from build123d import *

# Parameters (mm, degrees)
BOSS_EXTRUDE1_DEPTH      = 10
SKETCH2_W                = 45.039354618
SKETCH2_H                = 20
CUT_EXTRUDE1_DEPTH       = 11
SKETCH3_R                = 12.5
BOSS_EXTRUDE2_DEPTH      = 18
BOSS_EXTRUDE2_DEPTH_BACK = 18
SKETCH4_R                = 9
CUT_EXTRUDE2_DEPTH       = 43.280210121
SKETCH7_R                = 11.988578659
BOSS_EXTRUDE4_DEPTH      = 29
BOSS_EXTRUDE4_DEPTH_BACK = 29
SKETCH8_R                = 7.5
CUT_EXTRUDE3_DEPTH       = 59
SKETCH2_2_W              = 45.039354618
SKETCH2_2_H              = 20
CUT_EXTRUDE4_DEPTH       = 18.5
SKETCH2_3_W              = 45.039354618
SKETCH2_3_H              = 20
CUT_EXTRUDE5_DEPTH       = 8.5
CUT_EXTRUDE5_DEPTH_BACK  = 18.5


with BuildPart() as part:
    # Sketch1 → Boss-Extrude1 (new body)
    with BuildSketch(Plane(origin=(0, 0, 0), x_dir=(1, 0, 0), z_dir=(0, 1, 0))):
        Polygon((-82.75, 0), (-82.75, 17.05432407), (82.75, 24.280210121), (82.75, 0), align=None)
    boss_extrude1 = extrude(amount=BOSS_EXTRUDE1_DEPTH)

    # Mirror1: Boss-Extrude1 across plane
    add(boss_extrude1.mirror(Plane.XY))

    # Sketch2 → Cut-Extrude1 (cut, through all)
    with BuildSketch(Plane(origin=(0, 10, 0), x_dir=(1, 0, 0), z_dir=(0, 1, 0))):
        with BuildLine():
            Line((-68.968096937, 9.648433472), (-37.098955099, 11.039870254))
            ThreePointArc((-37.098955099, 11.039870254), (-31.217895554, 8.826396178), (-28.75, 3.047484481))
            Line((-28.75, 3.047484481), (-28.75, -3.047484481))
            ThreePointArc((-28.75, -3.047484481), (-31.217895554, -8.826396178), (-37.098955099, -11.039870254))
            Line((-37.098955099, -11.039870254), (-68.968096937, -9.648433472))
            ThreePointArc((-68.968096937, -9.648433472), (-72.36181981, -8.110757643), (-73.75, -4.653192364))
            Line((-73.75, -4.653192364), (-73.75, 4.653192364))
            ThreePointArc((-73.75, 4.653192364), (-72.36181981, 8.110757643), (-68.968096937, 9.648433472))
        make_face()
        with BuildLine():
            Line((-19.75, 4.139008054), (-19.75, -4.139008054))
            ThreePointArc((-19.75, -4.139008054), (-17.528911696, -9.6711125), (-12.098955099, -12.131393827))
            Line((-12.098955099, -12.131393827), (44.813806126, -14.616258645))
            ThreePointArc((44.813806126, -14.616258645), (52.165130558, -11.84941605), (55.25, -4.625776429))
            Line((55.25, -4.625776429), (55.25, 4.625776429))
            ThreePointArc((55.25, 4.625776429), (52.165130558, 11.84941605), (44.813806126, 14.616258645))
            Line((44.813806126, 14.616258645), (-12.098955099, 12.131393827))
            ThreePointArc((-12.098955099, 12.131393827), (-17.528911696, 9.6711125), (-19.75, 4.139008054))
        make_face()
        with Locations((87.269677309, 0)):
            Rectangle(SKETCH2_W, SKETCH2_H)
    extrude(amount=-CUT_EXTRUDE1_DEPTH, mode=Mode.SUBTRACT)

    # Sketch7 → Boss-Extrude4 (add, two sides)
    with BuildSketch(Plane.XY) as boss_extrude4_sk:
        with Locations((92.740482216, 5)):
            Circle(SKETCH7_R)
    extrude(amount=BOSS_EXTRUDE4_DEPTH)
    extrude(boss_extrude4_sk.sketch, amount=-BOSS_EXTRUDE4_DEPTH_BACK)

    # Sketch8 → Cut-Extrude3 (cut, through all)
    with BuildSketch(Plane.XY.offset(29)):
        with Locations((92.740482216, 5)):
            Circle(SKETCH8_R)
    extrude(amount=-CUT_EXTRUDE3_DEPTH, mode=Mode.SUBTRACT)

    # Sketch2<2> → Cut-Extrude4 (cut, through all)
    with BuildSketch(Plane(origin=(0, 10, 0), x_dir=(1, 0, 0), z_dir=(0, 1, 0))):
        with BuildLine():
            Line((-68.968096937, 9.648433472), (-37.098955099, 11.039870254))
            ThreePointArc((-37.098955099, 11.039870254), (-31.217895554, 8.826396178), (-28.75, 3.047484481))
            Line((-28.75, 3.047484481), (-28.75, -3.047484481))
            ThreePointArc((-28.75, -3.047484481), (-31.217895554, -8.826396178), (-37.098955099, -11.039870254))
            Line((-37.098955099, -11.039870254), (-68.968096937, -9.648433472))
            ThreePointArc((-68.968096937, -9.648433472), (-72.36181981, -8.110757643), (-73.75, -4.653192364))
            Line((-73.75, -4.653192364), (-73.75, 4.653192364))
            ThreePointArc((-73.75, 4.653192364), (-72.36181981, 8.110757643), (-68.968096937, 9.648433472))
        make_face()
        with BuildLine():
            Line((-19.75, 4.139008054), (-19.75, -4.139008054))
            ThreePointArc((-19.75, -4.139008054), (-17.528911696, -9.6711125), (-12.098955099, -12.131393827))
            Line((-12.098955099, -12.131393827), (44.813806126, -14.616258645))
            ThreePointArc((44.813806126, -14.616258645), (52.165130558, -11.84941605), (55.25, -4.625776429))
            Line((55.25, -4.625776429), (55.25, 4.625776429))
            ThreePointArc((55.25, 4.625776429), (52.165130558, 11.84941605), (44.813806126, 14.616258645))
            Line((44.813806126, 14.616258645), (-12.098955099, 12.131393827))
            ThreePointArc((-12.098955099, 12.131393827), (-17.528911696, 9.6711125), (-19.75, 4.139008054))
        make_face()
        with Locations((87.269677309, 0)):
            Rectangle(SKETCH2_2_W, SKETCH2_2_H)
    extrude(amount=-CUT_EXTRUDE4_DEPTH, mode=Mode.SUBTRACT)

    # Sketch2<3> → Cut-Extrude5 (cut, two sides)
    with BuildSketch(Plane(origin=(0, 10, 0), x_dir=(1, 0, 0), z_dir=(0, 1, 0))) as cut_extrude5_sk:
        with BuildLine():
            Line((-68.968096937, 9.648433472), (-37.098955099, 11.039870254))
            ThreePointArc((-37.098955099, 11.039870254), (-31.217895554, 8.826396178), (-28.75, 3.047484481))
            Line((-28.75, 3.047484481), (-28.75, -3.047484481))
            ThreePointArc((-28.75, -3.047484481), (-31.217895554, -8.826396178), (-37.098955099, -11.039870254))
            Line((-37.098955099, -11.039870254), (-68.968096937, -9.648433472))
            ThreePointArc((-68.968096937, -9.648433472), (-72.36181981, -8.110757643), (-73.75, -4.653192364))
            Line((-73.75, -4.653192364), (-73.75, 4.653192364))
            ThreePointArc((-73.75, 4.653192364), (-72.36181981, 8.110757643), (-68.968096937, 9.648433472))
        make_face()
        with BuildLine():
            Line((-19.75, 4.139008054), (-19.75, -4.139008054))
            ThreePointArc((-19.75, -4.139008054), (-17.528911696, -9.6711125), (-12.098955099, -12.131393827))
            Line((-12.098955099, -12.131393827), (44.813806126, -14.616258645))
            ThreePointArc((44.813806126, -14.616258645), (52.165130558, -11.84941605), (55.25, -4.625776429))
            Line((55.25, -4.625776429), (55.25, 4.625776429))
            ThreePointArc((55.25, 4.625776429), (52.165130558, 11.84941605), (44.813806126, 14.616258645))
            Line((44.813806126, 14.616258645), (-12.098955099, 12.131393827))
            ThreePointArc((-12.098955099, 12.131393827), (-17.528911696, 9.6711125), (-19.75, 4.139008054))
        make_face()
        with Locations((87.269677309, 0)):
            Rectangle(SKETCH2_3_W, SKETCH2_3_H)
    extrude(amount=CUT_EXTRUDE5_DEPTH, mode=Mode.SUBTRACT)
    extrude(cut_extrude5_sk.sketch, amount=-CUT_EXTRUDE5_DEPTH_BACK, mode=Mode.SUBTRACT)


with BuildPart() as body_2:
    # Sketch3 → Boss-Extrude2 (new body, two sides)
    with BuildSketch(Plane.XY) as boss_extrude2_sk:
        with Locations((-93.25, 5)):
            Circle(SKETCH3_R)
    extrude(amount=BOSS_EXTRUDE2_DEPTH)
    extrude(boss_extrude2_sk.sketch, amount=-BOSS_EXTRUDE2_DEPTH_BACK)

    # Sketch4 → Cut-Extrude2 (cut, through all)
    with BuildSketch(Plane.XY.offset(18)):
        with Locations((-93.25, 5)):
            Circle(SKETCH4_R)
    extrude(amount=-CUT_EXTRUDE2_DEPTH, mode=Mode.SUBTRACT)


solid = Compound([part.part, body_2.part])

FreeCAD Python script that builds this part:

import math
import FreeCAD as App
import Part
import Sketcher

V = App.Vector
Q = App.Units.Quantity

doc = App.newDocument("Part")
body = doc.addObject("PartDesign::Body", "Body")

sketch1 = body.newObject("Sketcher::SketchObject", "Sketch")
sketch1.AttachmentSupport = (doc.getObject("XZ_Plane"), [""])
sketch1.MapMode = "FlatFace"
sketch1.addGeometry([
    Part.LineSegment(V(-83, -17, 0), V(-83, 0, 0)),
    Part.LineSegment(V(-83, 0, 0), V(83, 0, 0)),
    Part.LineSegment(V(83, 0, 0), V(83, -24, 0)),
    Part.LineSegment(V(83, -24, 0), V(-83, -17, 0)),
], False)
sketch1.addConstraint([
    Sketcher.Constraint("Coincident", 0, 2, 1, 1),
    Sketcher.Constraint("Coincident", 1, 2, 2, 1),
    Sketcher.Constraint("Coincident", 2, 2, 3, 1),
    Sketcher.Constraint("Coincident", 3, 2, 0, 1),
    Sketcher.Constraint("Vertical", 0),
    Sketcher.Constraint("Horizontal", 1),
    Sketcher.Constraint("Vertical", 2),
    Sketcher.Constraint("Symmetric", 0, 2, 1, 2, -1, 1),
    Sketcher.Constraint("DistanceX", 1, 1, 1, 2, Q("165.5 mm")),
    Sketcher.Constraint("Angle", 3, Q("177.5 deg")),
    Sketcher.Constraint("DistanceY", 2, 2, 2, 1, Q("24.28021 mm")),
])
pad1 = body.newObject("PartDesign::Pad", "Pad")
pad1.Profile = sketch1
pad1.Length = 10
pad1.Reversed = True
doc.recompute()

mirrored = body.newObject("PartDesign::Mirrored", "Mirrored")
mirrored.Originals = [pad1]
mirrored.MirrorPlane = (doc.getObject("XY_Plane"), [""])
body.Tip = mirrored

sketch2 = body.newObject("Sketcher::SketchObject", "Sketch001")
sketch2.AttachmentSupport = (doc.getObject("XZ_Plane"), [""])
sketch2.MapMode = "FlatFace"
sketch2.AttachmentOffset = App.Placement(V(0, 0, -10), App.Rotation())
sketch2.addGeometry([
    Part.LineSegment(V(-37, -11, 0), V(-69, -10, 0)),
    Part.ArcOfCircle(Part.Circle(V(-69, -5, 0), V(0, 0, 1), 5), math.radians(180), math.radians(267)),
    Part.LineSegment(V(-74, -5, 0), V(-74, 5, 0)),
    Part.ArcOfCircle(Part.Circle(V(-69, 5, 0), V(0, 0, 1), 5), math.radians(93), math.radians(180)),
    Part.LineSegment(V(-69, 10, 0), V(-37, 11, 0)),
    Part.ArcOfCircle(Part.Circle(V(-37, 3, 0), V(0, 0, 1), 8), math.radians(0), math.radians(93)),
    Part.LineSegment(V(-29, 3, 0), V(-29, -3, 0)),
    Part.ArcOfCircle(Part.Circle(V(-37, -3, 0), V(0, 0, 1), 8), math.radians(-93), math.radians(0)),
    Part.LineSegment(V(-20, -4, 0), V(-20, 4, 0)),
    Part.ArcOfCircle(Part.Circle(V(-12, 4, 0), V(0, 0, 1), 8), math.radians(93), math.radians(180)),
    Part.LineSegment(V(-12, 12, 0), V(45, 15, 0)),
    Part.ArcOfCircle(Part.Circle(V(45, 5, 0), V(0, 0, 1), 10), math.radians(0), math.radians(93)),
    Part.LineSegment(V(55, 5, 0), V(55, -5, 0)),
    Part.ArcOfCircle(Part.Circle(V(45, -5, 0), V(0, 0, 1), 10), math.radians(-93), math.radians(0)),
    Part.LineSegment(V(45, -15, 0), V(-12, -12, 0)),
    Part.ArcOfCircle(Part.Circle(V(-12, -4, 0), V(0, 0, 1), 8), math.radians(-180), math.radians(-93)),
    Part.LineSegment(V(65, -10, 0), V(65, 10, 0)),
    Part.LineSegment(V(65, 10, 0), V(110, 10, 0)),
    Part.LineSegment(V(110, 10, 0), V(110, -10, 0)),
    Part.LineSegment(V(110, -10, 0), V(65, -10, 0)),
], False)
sketch2.addConstraint([
    Sketcher.Constraint("Tangent", 0, 2, 1, 2),
    Sketcher.Constraint("Tangent", 1, 1, 2, 1),
    Sketcher.Constraint("Tangent", 2, 2, 3, 2),
    Sketcher.Constraint("Tangent", 3, 1, 4, 1),
    Sketcher.Constraint("Tangent", 4, 2, 5, 2),
    Sketcher.Constraint("Tangent", 5, 1, 6, 1),
    Sketcher.Constraint("Tangent", 6, 2, 7, 2),
    Sketcher.Constraint("Tangent", 7, 1, 0, 1),
    Sketcher.Constraint("Tangent", 8, 2, 9, 2),
    Sketcher.Constraint("Tangent", 9, 1, 10, 1),
    Sketcher.Constraint("Tangent", 10, 2, 11, 2),
    Sketcher.Constraint("Tangent", 11, 1, 12, 1),
    Sketcher.Constraint("Tangent", 12, 2, 13, 2),
    Sketcher.Constraint("Tangent", 13, 1, 14, 1),
    Sketcher.Constraint("Tangent", 14, 2, 15, 2),
    Sketcher.Constraint("Tangent", 15, 1, 8, 1),
    Sketcher.Constraint("Coincident", 16, 2, 17, 1),
    Sketcher.Constraint("Coincident", 17, 2, 18, 1),
    Sketcher.Constraint("Coincident", 18, 2, 19, 1),
    Sketcher.Constraint("Coincident", 19, 2, 16, 1),
    Sketcher.Constraint("Vertical", 2),
    Sketcher.Constraint("Vertical", 6),
    Sketcher.Constraint("Vertical", 8),
    Sketcher.Constraint("Vertical", 12),
    Sketcher.Constraint("Vertical", 16),
    Sketcher.Constraint("Horizontal", 17),
    Sketcher.Constraint("Vertical", 18),
    Sketcher.Constraint("Horizontal", 19),
    Sketcher.Constraint("Equal", 1, 3),
    Sketcher.Constraint("Equal", 5, 7),
    Sketcher.Constraint("Equal", 7, 9),
    Sketcher.Constraint("Equal", 11, 13),
    Sketcher.Constraint("Equal", 9, 15),
    Sketcher.Constraint("Symmetric", 0, 2, 3, 1, -1),
    Sketcher.Constraint("Symmetric", 10, 2, 13, 1, -1),
    Sketcher.Constraint("Parallel", 4, 10),
    Sketcher.Constraint("Radius", 1, Q("5 mm")),
    Sketcher.Constraint("Radius", 5, Q("8 mm")),
    Sketcher.Constraint("Radius", 11, Q("10 mm")),
    Sketcher.Constraint("DistanceY", 16, 1, 16, 2, Q("20 mm")),
    Sketcher.Constraint("DistanceY", -1, 1, 16, 2, Q("10 mm")),
    Sketcher.Constraint("Angle", 0, Q("177.5 deg")),
    Sketcher.Constraint("DistanceX", 3, 3, 5, 3, Q("32 mm")),
    Sketcher.Constraint("DistanceX", 5, 3, 9, 3, Q("25 mm")),
    Sketcher.Constraint("DistanceX", 9, 3, 11, 3, Q("57 mm")),
    Sketcher.Constraint("DistanceX", 11, 1, 16, 2, Q("9.5 mm")),
    Sketcher.Constraint("DistanceX", 1, 3, -1, 1, Q("68.75 mm")),
    Sketcher.Constraint("DistanceY", 6, 2, 6, 1, Q("6.094969 mm")),
    Sketcher.Constraint("DistanceY", 1, 3, 9, 3, Q("8.7922 mm")),
    Sketcher.Constraint("DistanceX", 17, 1, 17, 2, Q("45.039355 mm")),
])
pocket1 = body.newObject("PartDesign::Pocket", "Pocket")
pocket1.Profile = sketch2
pocket1.Type = "ThroughAll"
pocket1.Reversed = True

sketch3 = body.newObject("Sketcher::SketchObject", "Sketch002")
sketch3.AttachmentSupport = (doc.getObject("XY_Plane"), [""])
sketch3.MapMode = "FlatFace"
sketch3.addGeometry(Part.Circle(V(93, 5, 0), V(0, 0, 1), 12), False)
sketch3.addConstraint([
    Sketcher.Constraint("DistanceY", -1, 1, 0, 3, Q("5 mm")),
    Sketcher.Constraint("Diameter", 0, Q("23.977157 mm")),
    Sketcher.Constraint("DistanceX", -1, 1, 0, 3, Q("92.740482 mm")),
])
pad2 = body.newObject("PartDesign::Pad", "Pad001")
pad2.Profile = sketch3
pad2.Type = "TwoLengths"
pad2.Length = 29
pad2.Length2 = 29

sketch4 = body.newObject("Sketcher::SketchObject", "Sketch003")
sketch4.AttachmentSupport = (doc.getObject("XY_Plane"), [""])
sketch4.MapMode = "FlatFace"
sketch4.AttachmentOffset = App.Placement(V(0, 0, 29), App.Rotation())
sketch4.addGeometry(Part.Circle(V(93, 5, 0), V(0, 0, 1), 8), False)
sketch4.addConstraint([
    Sketcher.Constraint("Diameter", 0, Q("15 mm")),
    Sketcher.Constraint("DistanceY", -1, 1, 0, 3, Q("5 mm")),
    Sketcher.Constraint("DistanceX", -1, 1, 0, 3, Q("92.740482 mm")),
])
pocket2 = body.newObject("PartDesign::Pocket", "Pocket001")
pocket2.Profile = sketch4
pocket2.Type = "ThroughAll"

sketch5 = body.newObject("Sketcher::SketchObject", "Sketch004")
sketch5.AttachmentSupport = (doc.getObject("XZ_Plane"), [""])
sketch5.MapMode = "FlatFace"
sketch5.AttachmentOffset = App.Placement(V(0, 0, -10), App.Rotation())
sketch5.addGeometry([
    Part.LineSegment(V(-37, -11, 0), V(-69, -10, 0)),
    Part.ArcOfCircle(Part.Circle(V(-69, -5, 0), V(0, 0, 1), 5), math.radians(180), math.radians(267)),
    Part.LineSegment(V(-74, -5, 0), V(-74, 5, 0)),
    Part.ArcOfCircle(Part.Circle(V(-69, 5, 0), V(0, 0, 1), 5), math.radians(93), math.radians(180)),
    Part.LineSegment(V(-69, 10, 0), V(-37, 11, 0)),
    Part.ArcOfCircle(Part.Circle(V(-37, 3, 0), V(0, 0, 1), 8), math.radians(0), math.radians(93)),
    Part.LineSegment(V(-29, 3, 0), V(-29, -3, 0)),
    Part.ArcOfCircle(Part.Circle(V(-37, -3, 0), V(0, 0, 1), 8), math.radians(-93), math.radians(0)),
    Part.LineSegment(V(-20, -4, 0), V(-20, 4, 0)),
    Part.ArcOfCircle(Part.Circle(V(-12, 4, 0), V(0, 0, 1), 8), math.radians(93), math.radians(180)),
    Part.LineSegment(V(-12, 12, 0), V(45, 15, 0)),
    Part.ArcOfCircle(Part.Circle(V(45, 5, 0), V(0, 0, 1), 10), math.radians(0), math.radians(93)),
    Part.LineSegment(V(55, 5, 0), V(55, -5, 0)),
    Part.ArcOfCircle(Part.Circle(V(45, -5, 0), V(0, 0, 1), 10), math.radians(-93), math.radians(0)),
    Part.LineSegment(V(45, -15, 0), V(-12, -12, 0)),
    Part.ArcOfCircle(Part.Circle(V(-12, -4, 0), V(0, 0, 1), 8), math.radians(-180), math.radians(-93)),
    Part.LineSegment(V(65, -10, 0), V(65, 10, 0)),
    Part.LineSegment(V(65, 10, 0), V(110, 10, 0)),
    Part.LineSegment(V(110, 10, 0), V(110, -10, 0)),
    Part.LineSegment(V(110, -10, 0), V(65, -10, 0)),
], False)
sketch5.addConstraint([
    Sketcher.Constraint("Tangent", 0, 2, 1, 2),
    Sketcher.Constraint("Tangent", 1, 1, 2, 1),
    Sketcher.Constraint("Tangent", 2, 2, 3, 2),
    Sketcher.Constraint("Tangent", 3, 1, 4, 1),
    Sketcher.Constraint("Tangent", 4, 2, 5, 2),
    Sketcher.Constraint("Tangent", 5, 1, 6, 1),
    Sketcher.Constraint("Tangent", 6, 2, 7, 2),
    Sketcher.Constraint("Tangent", 7, 1, 0, 1),
    Sketcher.Constraint("Tangent", 8, 2, 9, 2),
    Sketcher.Constraint("Tangent", 9, 1, 10, 1),
    Sketcher.Constraint("Tangent", 10, 2, 11, 2),
    Sketcher.Constraint("Tangent", 11, 1, 12, 1),
    Sketcher.Constraint("Tangent", 12, 2, 13, 2),
    Sketcher.Constraint("Tangent", 13, 1, 14, 1),
    Sketcher.Constraint("Tangent", 14, 2, 15, 2),
    Sketcher.Constraint("Tangent", 15, 1, 8, 1),
    Sketcher.Constraint("Coincident", 16, 2, 17, 1),
    Sketcher.Constraint("Coincident", 17, 2, 18, 1),
    Sketcher.Constraint("Coincident", 18, 2, 19, 1),
    Sketcher.Constraint("Coincident", 19, 2, 16, 1),
    Sketcher.Constraint("Vertical", 2),
    Sketcher.Constraint("Vertical", 6),
    Sketcher.Constraint("Vertical", 8),
    Sketcher.Constraint("Vertical", 12),
    Sketcher.Constraint("Vertical", 16),
    Sketcher.Constraint("Horizontal", 17),
    Sketcher.Constraint("Vertical", 18),
    Sketcher.Constraint("Horizontal", 19),
    Sketcher.Constraint("Equal", 1, 3),
    Sketcher.Constraint("Equal", 5, 7),
    Sketcher.Constraint("Equal", 7, 9),
    Sketcher.Constraint("Equal", 11, 13),
    Sketcher.Constraint("Equal", 9, 15),
    Sketcher.Constraint("Symmetric", 0, 2, 3, 1, -1),
    Sketcher.Constraint("Symmetric", 10, 2, 13, 1, -1),
    Sketcher.Constraint("Parallel", 4, 10),
    Sketcher.Constraint("Radius", 1, Q("5 mm")),
    Sketcher.Constraint("Radius", 5, Q("8 mm")),
    Sketcher.Constraint("Radius", 11, Q("10 mm")),
    Sketcher.Constraint("DistanceY", 16, 1, 16, 2, Q("20 mm")),
    Sketcher.Constraint("DistanceY", -1, 1, 16, 2, Q("10 mm")),
    Sketcher.Constraint("Angle", 0, Q("177.5 deg")),
    Sketcher.Constraint("DistanceX", 3, 3, 5, 3, Q("32 mm")),
    Sketcher.Constraint("DistanceX", 5, 3, 9, 3, Q("25 mm")),
    Sketcher.Constraint("DistanceX", 9, 3, 11, 3, Q("57 mm")),
    Sketcher.Constraint("DistanceX", 11, 1, 16, 2, Q("9.5 mm")),
    Sketcher.Constraint("DistanceX", 1, 3, -1, 1, Q("68.75 mm")),
    Sketcher.Constraint("DistanceY", 6, 2, 6, 1, Q("6.094969 mm")),
    Sketcher.Constraint("DistanceY", 1, 3, 9, 3, Q("8.7922 mm")),
    Sketcher.Constraint("DistanceX", 17, 1, 17, 2, Q("45.039355 mm")),
])
pocket3 = body.newObject("PartDesign::Pocket", "Pocket002")
pocket3.Profile = sketch5
pocket3.Type = "ThroughAll"
pocket3.Reversed = True

sketch6 = body.newObject("Sketcher::SketchObject", "Sketch005")
sketch6.AttachmentSupport = (doc.getObject("XZ_Plane"), [""])
sketch6.MapMode = "FlatFace"
sketch6.AttachmentOffset = App.Placement(V(0, 0, -10), App.Rotation())
sketch6.addGeometry([
    Part.LineSegment(V(-37, -11, 0), V(-69, -10, 0)),
    Part.ArcOfCircle(Part.Circle(V(-69, -5, 0), V(0, 0, 1), 5), math.radians(180), math.radians(267)),
    Part.LineSegment(V(-74, -5, 0), V(-74, 5, 0)),
    Part.ArcOfCircle(Part.Circle(V(-69, 5, 0), V(0, 0, 1), 5), math.radians(93), math.radians(180)),
    Part.LineSegment(V(-69, 10, 0), V(-37, 11, 0)),
    Part.ArcOfCircle(Part.Circle(V(-37, 3, 0), V(0, 0, 1), 8), math.radians(0), math.radians(93)),
    Part.LineSegment(V(-29, 3, 0), V(-29, -3, 0)),
    Part.ArcOfCircle(Part.Circle(V(-37, -3, 0), V(0, 0, 1), 8), math.radians(-93), math.radians(0)),
    Part.LineSegment(V(-20, -4, 0), V(-20, 4, 0)),
    Part.ArcOfCircle(Part.Circle(V(-12, 4, 0), V(0, 0, 1), 8), math.radians(93), math.radians(180)),
    Part.LineSegment(V(-12, 12, 0), V(45, 15, 0)),
    Part.ArcOfCircle(Part.Circle(V(45, 5, 0), V(0, 0, 1), 10), math.radians(0), math.radians(93)),
    Part.LineSegment(V(55, 5, 0), V(55, -5, 0)),
    Part.ArcOfCircle(Part.Circle(V(45, -5, 0), V(0, 0, 1), 10), math.radians(-93), math.radians(0)),
    Part.LineSegment(V(45, -15, 0), V(-12, -12, 0)),
    Part.ArcOfCircle(Part.Circle(V(-12, -4, 0), V(0, 0, 1), 8), math.radians(-180), math.radians(-93)),
    Part.LineSegment(V(65, -10, 0), V(65, 10, 0)),
    Part.LineSegment(V(65, 10, 0), V(110, 10, 0)),
    Part.LineSegment(V(110, 10, 0), V(110, -10, 0)),
    Part.LineSegment(V(110, -10, 0), V(65, -10, 0)),
], False)
sketch6.addConstraint([
    Sketcher.Constraint("Tangent", 0, 2, 1, 2),
    Sketcher.Constraint("Tangent", 1, 1, 2, 1),
    Sketcher.Constraint("Tangent", 2, 2, 3, 2),
    Sketcher.Constraint("Tangent", 3, 1, 4, 1),
    Sketcher.Constraint("Tangent", 4, 2, 5, 2),
    Sketcher.Constraint("Tangent", 5, 1, 6, 1),
    Sketcher.Constraint("Tangent", 6, 2, 7, 2),
    Sketcher.Constraint("Tangent", 7, 1, 0, 1),
    Sketcher.Constraint("Tangent", 8, 2, 9, 2),
    Sketcher.Constraint("Tangent", 9, 1, 10, 1),
    Sketcher.Constraint("Tangent", 10, 2, 11, 2),
    Sketcher.Constraint("Tangent", 11, 1, 12, 1),
    Sketcher.Constraint("Tangent", 12, 2, 13, 2),
    Sketcher.Constraint("Tangent", 13, 1, 14, 1),
    Sketcher.Constraint("Tangent", 14, 2, 15, 2),
    Sketcher.Constraint("Tangent", 15, 1, 8, 1),
    Sketcher.Constraint("Coincident", 16, 2, 17, 1),
    Sketcher.Constraint("Coincident", 17, 2, 18, 1),
    Sketcher.Constraint("Coincident", 18, 2, 19, 1),
    Sketcher.Constraint("Coincident", 19, 2, 16, 1),
    Sketcher.Constraint("Vertical", 2),
    Sketcher.Constraint("Vertical", 6),
    Sketcher.Constraint("Vertical", 8),
    Sketcher.Constraint("Vertical", 12),
    Sketcher.Constraint("Vertical", 16),
    Sketcher.Constraint("Horizontal", 17),
    Sketcher.Constraint("Vertical", 18),
    Sketcher.Constraint("Horizontal", 19),
    Sketcher.Constraint("Equal", 1, 3),
    Sketcher.Constraint("Equal", 5, 7),
    Sketcher.Constraint("Equal", 7, 9),
    Sketcher.Constraint("Equal", 11, 13),
    Sketcher.Constraint("Equal", 9, 15),
    Sketcher.Constraint("Symmetric", 0, 2, 3, 1, -1),
    Sketcher.Constraint("Symmetric", 10, 2, 13, 1, -1),
    Sketcher.Constraint("Parallel", 4, 10),
    Sketcher.Constraint("Radius", 1, Q("5 mm")),
    Sketcher.Constraint("Radius", 5, Q("8 mm")),
    Sketcher.Constraint("Radius", 11, Q("10 mm")),
    Sketcher.Constraint("DistanceY", 16, 1, 16, 2, Q("20 mm")),
    Sketcher.Constraint("DistanceY", -1, 1, 16, 2, Q("10 mm")),
    Sketcher.Constraint("Angle", 0, Q("177.5 deg")),
    Sketcher.Constraint("DistanceX", 3, 3, 5, 3, Q("32 mm")),
    Sketcher.Constraint("DistanceX", 5, 3, 9, 3, Q("25 mm")),
    Sketcher.Constraint("DistanceX", 9, 3, 11, 3, Q("57 mm")),
    Sketcher.Constraint("DistanceX", 11, 1, 16, 2, Q("9.5 mm")),
    Sketcher.Constraint("DistanceX", 1, 3, -1, 1, Q("68.75 mm")),
    Sketcher.Constraint("DistanceY", 6, 2, 6, 1, Q("6.094969 mm")),
    Sketcher.Constraint("DistanceY", 1, 3, 9, 3, Q("8.7922 mm")),
    Sketcher.Constraint("DistanceX", 17, 1, 17, 2, Q("45.039355 mm")),
])
pocket4 = body.newObject("PartDesign::Pocket", "Pocket003")
pocket4.Profile = sketch6
pocket4.Type = "ThroughAll"
pocket4.Midplane = True
body2 = doc.addObject("PartDesign::Body", "Body001")

sketch7 = body2.newObject("Sketcher::SketchObject", "Sketch006")
sketch7.AttachmentSupport = (doc.getObject("XY_Plane001"), [""])
sketch7.MapMode = "FlatFace"
sketch7.addGeometry(Part.Circle(V(-93, 5, 0), V(0, 0, 1), 12), False)
sketch7.addConstraint([
    Sketcher.Constraint("Diameter", 0, Q("25 mm")),
    Sketcher.Constraint("DistanceY", -1, 1, 0, 3, Q("5 mm")),
    Sketcher.Constraint("DistanceX", 0, 3, -1, 1, Q("93.25 mm")),
])
pad3 = body2.newObject("PartDesign::Pad", "Pad002")
pad3.Profile = sketch7
pad3.Type = "TwoLengths"
pad3.Length = 18
pad3.Length2 = 18

sketch8 = body2.newObject("Sketcher::SketchObject", "Sketch007")
sketch8.AttachmentSupport = (doc.getObject("XY_Plane001"), [""])
sketch8.MapMode = "FlatFace"
sketch8.AttachmentOffset = App.Placement(V(0, 0, 18), App.Rotation())
sketch8.addGeometry(Part.Circle(V(-93, 5, 0), V(0, 0, 1), 9), False)
sketch8.addConstraint([
    Sketcher.Constraint("Diameter", 0, Q("18 mm")),
    Sketcher.Constraint("DistanceY", -1, 1, 0, 3, Q("5 mm")),
    Sketcher.Constraint("DistanceX", 0, 3, -1, 1, Q("93.25 mm")),
])
pocket5 = body2.newObject("PartDesign::Pocket", "Pocket004")
pocket5.Profile = sketch8
pocket5.Type = "ThroughAll"

doc.recompute()
